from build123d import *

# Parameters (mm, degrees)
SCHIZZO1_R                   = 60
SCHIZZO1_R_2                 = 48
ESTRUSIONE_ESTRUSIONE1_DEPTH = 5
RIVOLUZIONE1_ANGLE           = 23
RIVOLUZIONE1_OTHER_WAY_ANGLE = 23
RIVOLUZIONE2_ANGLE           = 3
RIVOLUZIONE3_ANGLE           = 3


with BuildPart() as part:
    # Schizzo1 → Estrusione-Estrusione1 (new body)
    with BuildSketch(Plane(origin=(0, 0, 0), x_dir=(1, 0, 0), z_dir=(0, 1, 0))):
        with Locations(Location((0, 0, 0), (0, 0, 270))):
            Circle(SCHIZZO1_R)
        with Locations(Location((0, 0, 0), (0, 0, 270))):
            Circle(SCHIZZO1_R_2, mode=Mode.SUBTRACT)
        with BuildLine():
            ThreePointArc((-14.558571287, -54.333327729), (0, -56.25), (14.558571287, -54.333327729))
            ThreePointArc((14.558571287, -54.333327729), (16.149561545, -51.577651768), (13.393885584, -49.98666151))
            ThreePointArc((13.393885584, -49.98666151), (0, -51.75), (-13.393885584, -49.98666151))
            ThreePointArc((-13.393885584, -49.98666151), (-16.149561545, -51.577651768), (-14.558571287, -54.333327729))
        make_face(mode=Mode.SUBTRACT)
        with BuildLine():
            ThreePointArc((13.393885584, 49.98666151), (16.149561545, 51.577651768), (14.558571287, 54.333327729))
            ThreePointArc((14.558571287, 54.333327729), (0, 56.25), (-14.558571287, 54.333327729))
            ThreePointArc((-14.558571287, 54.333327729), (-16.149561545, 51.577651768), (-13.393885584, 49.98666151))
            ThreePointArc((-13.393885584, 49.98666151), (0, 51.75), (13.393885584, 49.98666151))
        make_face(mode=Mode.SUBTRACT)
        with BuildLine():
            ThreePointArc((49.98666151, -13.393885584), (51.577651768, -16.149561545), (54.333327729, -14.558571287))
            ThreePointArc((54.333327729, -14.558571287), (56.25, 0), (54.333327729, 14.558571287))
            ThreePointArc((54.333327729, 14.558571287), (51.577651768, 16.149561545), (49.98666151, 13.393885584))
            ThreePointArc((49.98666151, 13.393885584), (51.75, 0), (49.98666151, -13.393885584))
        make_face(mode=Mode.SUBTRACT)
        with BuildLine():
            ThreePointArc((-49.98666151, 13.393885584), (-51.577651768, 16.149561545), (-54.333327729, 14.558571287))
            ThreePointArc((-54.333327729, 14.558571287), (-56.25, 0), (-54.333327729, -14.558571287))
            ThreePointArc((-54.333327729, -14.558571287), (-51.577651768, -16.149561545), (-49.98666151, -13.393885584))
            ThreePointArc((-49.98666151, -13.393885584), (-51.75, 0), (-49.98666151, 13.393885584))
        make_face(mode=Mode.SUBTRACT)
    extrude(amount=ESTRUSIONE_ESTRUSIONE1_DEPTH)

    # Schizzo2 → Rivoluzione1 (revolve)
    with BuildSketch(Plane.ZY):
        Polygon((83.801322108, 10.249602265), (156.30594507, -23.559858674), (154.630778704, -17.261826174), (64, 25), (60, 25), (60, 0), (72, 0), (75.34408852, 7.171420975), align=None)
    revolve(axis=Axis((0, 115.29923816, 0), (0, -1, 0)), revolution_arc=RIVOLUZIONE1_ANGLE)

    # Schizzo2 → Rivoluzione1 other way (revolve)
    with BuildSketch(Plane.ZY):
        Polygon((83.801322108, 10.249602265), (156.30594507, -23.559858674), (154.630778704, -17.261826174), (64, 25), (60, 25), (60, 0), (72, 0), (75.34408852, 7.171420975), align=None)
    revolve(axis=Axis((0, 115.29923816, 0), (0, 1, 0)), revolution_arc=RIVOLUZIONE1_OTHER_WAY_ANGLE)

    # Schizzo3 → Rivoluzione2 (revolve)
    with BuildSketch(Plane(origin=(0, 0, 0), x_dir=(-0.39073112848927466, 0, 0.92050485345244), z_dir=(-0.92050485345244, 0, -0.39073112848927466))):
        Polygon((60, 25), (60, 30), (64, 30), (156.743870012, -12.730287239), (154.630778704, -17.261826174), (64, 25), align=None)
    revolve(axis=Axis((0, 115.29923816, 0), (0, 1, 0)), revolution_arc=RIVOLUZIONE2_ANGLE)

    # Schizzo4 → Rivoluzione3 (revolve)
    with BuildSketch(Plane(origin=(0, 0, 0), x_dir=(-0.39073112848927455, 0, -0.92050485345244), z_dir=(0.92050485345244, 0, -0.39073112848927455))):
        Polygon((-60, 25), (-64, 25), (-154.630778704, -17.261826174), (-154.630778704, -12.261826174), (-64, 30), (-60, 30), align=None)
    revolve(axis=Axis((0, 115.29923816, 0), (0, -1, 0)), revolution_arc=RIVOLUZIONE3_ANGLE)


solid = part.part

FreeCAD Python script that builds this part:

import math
import FreeCAD as App
import Part
import Sketcher
Q = App.Units.Quantity

doc = App.newDocument("Part")
body = doc.addObject("PartDesign::Body", "Body")

sketch1 = doc.addObject("Sketcher::SketchObject", "Sketch")
body.addObject(sketch1)
sketch1.AttachmentSupport = (doc.XZ_Plane, [""])
sketch1.MapMode = "FlatFace"
sketch1.addGeometry([
    Part.Circle(App.Vector(0, 0, 0), App.Vector(0, 0, 1), 60),
    Part.ArcOfCircle(Part.Circle(App.Vector(14, -52.2, 0), App.Vector(0, 0, 1), 2.2), math.radians(-75), math.radians(105)),
    Part.ArcOfCircle(Part.Circle(App.Vector(0, 0, 0), App.Vector(0, 0, 1), 51.7), math.radians(-105), math.radians(-75)),
    Part.ArcOfCircle(Part.Circle(App.Vector(-14, -52.2, 0), App.Vector(0, 0, 1), 2.2), math.radians(75), math.radians(255)),
    Part.ArcOfCircle(Part.Circle(App.Vector(0, 0, 0), App.Vector(0, 0, 1), 56.3), math.radians(-105), math.radians(-75)),
    Part.Circle(App.Vector(0, 0, 0), App.Vector(0, 0, 1), 48),
    Part.ArcOfCircle(Part.Circle(App.Vector(-52.2, -14, 0), App.Vector(0, 0, 1), 2.2), math.radians(-165), math.radians(15)),
    Part.ArcOfCircle(Part.Circle(App.Vector(0, 0, 0), App.Vector(0, 0, 1), 51.7), math.radians(165), math.radians(195)),
    Part.ArcOfCircle(Part.Circle(App.Vector(-52.2, 14, 0), App.Vector(0, 0, 1), 2.2), math.radians(-15), math.radians(165)),
    Part.ArcOfCircle(Part.Circle(App.Vector(0, 0, 0), App.Vector(0, 0, 1), 56.3), math.radians(165), math.radians(195)),
    Part.ArcOfCircle(Part.Circle(App.Vector(52.2, 14, 0), App.Vector(0, 0, 1), 2.2), math.radians(15), math.radians(195)),
    Part.ArcOfCircle(Part.Circle(App.Vector(0, 0, 0), App.Vector(0, 0, 1), 51.7), math.radians(-15), math.radians(15)),
    Part.ArcOfCircle(Part.Circle(App.Vector(52.2, -14, 0), App.Vector(0, 0, 1), 2.2), math.radians(165), math.radians(345)),
    Part.ArcOfCircle(Part.Circle(App.Vector(0, 0, 0), App.Vector(0, 0, 1), 56.3), math.radians(-15), math.radians(15)),
    Part.ArcOfCircle(Part.Circle(App.Vector(0, 0, 0), App.Vector(0, 0, 1), 56.3), math.radians(75), math.radians(105)),
    Part.ArcOfCircle(Part.Circle(App.Vector(-14, 52.2, 0), App.Vector(0, 0, 1), 2.2), math.radians(105), math.radians(285)),
    Part.ArcOfCircle(Part.Circle(App.Vector(0, 0, 0), App.Vector(0, 0, 1), 51.7), math.radians(75), math.radians(105)),
    Part.ArcOfCircle(Part.Circle(App.Vector(14, 52.2, 0), App.Vector(0, 0, 1), 2.2), math.radians(-105), math.radians(75)),
], False)
sketch1.addConstraint([
    Sketcher.Constraint("Tangent", 1, 2, 2, 2),
    Sketcher.Constraint("Tangent", 2, 1, 3, 1),
    Sketcher.Constraint("Tangent", 3, 2, 4, 1),
    Sketcher.Constraint("Tangent", 4, 2, 1, 1),
    Sketcher.Constraint("Tangent", 6, 2, 7, 2),
    Sketcher.Constraint("Tangent", 7, 1, 8, 1),
    Sketcher.Constraint("Tangent", 8, 2, 9, 1),
    Sketcher.Constraint("Tangent", 9, 2, 6, 1),
    Sketcher.Constraint("Tangent", 10, 2, 11, 2),
    Sketcher.Constraint("Tangent", 11, 1, 12, 1),
    Sketcher.Constraint("Tangent", 12, 2, 13, 1),
    Sketcher.Constraint("Tangent", 13, 2, 10, 1),
    Sketcher.Constraint("Tangent", 14, 2, 15, 1),
    Sketcher.Constraint("Tangent", 15, 2, 16, 2),
    Sketcher.Constraint("Tangent", 16, 1, 17, 1),
    Sketcher.Constraint("Tangent", 17, 2, 14, 1),
    Sketcher.Constraint("Coincident", 0, 3, -1, 1),
    Sketcher.Constraint("Coincident", 2, 3, -1, 1),
    Sketcher.Constraint("Coincident", 4, 3, -1, 1),
    Sketcher.Constraint("Coincident", 5, 3, -1, 1),
    Sketcher.Constraint("Coincident", 7, 3, -1, 1),
    Sketcher.Constraint("Coincident", 9, 3, -1, 1),
    Sketcher.Constraint("Coincident", 11, 3, -1, 1),
    Sketcher.Constraint("Coincident", 13, 3, -1, 1),
    Sketcher.Constraint("Coincident", 14, 3, -1, 1),
    Sketcher.Constraint("Coincident", 16, 3, -1, 1),
    Sketcher.Constraint("Equal", 3, 6),
    Sketcher.Constraint("Equal", 2, 7),
    Sketcher.Constraint("Equal", 8, 10),
    Sketcher.Constraint("Equal", 7, 11),
    Sketcher.Constraint("Equal", 13, 14),
    Sketcher.Constraint("Equal", 12, 15),
    Sketcher.Constraint("Horizontal", 1, 3, 3, 3),
    Sketcher.Constraint("Horizontal", 8, 3, 10, 3),
    Sketcher.Constraint("Horizontal", 6, 3, 12, 3),
    Sketcher.Constraint("Horizontal", 15, 3, 17, 3),
    Sketcher.Constraint("Vertical", 6, 3, 8, 3),
    Sketcher.Constraint("Vertical", 3, 3, 15, 3),
    Sketcher.Constraint("Diameter", 0, Q("120 mm")),
    Sketcher.Constraint("Diameter", 5, Q("96 mm")),
    Sketcher.Constraint("Radius", 1, Q("2.25 mm")),
    Sketcher.Constraint("Radius", 2, Q("51.75 mm")),
    Sketcher.Constraint("DistanceX", 3, 2, 1, 3, Q("28.5348 mm")),
    Sketcher.Constraint("DistanceY", 3, 2, 6, 3, Q("40.357099 mm")),
])
pad1 = doc.addObject("PartDesign::Pad", "Pad")
body.addObject(pad1)
pad1.Profile = sketch1
pad1.Length = 5
pad1.Reversed = True

sketch2 = doc.addObject("Sketcher::SketchObject", "Sketch001")
body.addObject(sketch2)
sketch2.AttachmentSupport = (doc.YZ_Plane, [""])
sketch2.MapMode = "FlatFace"
sketch2.addGeometry([
    Part.LineSegment(App.Vector(10.2, 83.8, 0), App.Vector(-23.6, 156.3, 0)),
    Part.LineSegment(App.Vector(-23.6, 156.3, 0), App.Vector(-17.3, 154.6, 0)),
    Part.LineSegment(App.Vector(-17.3, 154.6, 0), App.Vector(25, 64, 0)),
    Part.LineSegment(App.Vector(25, 64, 0), App.Vector(25, 60, 0)),
    Part.LineSegment(App.Vector(25, 60, 0), App.Vector(0, 60, 0)),
    Part.LineSegment(App.Vector(0, 60, 0), App.Vector(0, 72, 0)),
    Part.LineSegment(App.Vector(0, 72, 0), App.Vector(7.2, 75.3, 0)),
    Part.LineSegment(App.Vector(7.2, 75.3, 0), App.Vector(10.2, 83.8, 0)),
], False)
sketch2.addConstraint([
    Sketcher.Constraint("Coincident", 0, 2, 1, 1),
    Sketcher.Constraint("Coincident", 1, 2, 2, 1),
    Sketcher.Constraint("Coincident", 2, 2, 3, 1),
    Sketcher.Constraint("Coincident", 3, 2, 4, 1),
    Sketcher.Constraint("Coincident", 4, 2, 5, 1),
    Sketcher.Constraint("Coincident", 5, 2, 6, 1),
    Sketcher.Constraint("Coincident", 6, 2, 7, 1),
    Sketcher.Constraint("Coincident", 7, 2, 0, 1),
    Sketcher.Constraint("Vertical", 3),
    Sketcher.Constraint("Horizontal", 4),
    Sketcher.Constraint("Vertical", 5),
    Sketcher.Constraint("PointOnObject", 4, 2, -2),
    Sketcher.Constraint("Parallel", 0, 2),
    Sketcher.Constraint("Perpendicular", 2, 6),
    Sketcher.Constraint("DistanceX", 4, 2, 4, 1, Q("25 mm")),
    Sketcher.Constraint("DistanceY", 3, 2, 3, 1, Q("4 mm")),
    Sketcher.Constraint("DistanceY", 5, 1, 5, 2, Q("12 mm")),
    Sketcher.Constraint("Angle", 0, Q("115 deg")),
    Sketcher.Constraint("Angle", 7, Q("70 deg")),
    Sketcher.Constraint("Distance", 0, Q("80 mm")),
    Sketcher.Constraint("Distance", 2, Q("100 mm")),
    Sketcher.Constraint("Distance", 7, Q("9 mm")),
    Sketcher.Constraint("DistanceY", -1, 1, 2, 2, Q("64 mm")),
    Sketcher.Constraint("Distance", 1, Q("6.517008 mm")),
])
revolution = doc.addObject("PartDesign::Revolution", "Revolution")
body.addObject(revolution)
revolution.Profile = sketch2
revolution.ReferenceAxis = (sketch2, ["H_Axis"])
revolution.Angle = 23
revolution.Reversed = True

sketch3 = doc.addObject("Sketcher::SketchObject", "Sketch002")
body.addObject(sketch3)
sketch3.AttachmentSupport = (doc.YZ_Plane, [""])
sketch3.MapMode = "FlatFace"
sketch3.addGeometry([
    Part.LineSegment(App.Vector(10.2, 83.8, 0), App.Vector(-23.6, 156.3, 0)),
    Part.LineSegment(App.Vector(-23.6, 156.3, 0), App.Vector(-17.3, 154.6, 0)),
    Part.LineSegment(App.Vector(-17.3, 154.6, 0), App.Vector(25, 64, 0)),
    Part.LineSegment(App.Vector(25, 64, 0), App.Vector(25, 60, 0)),
    Part.LineSegment(App.Vector(25, 60, 0), App.Vector(0, 60, 0)),
    Part.LineSegment(App.Vector(0, 60, 0), App.Vector(0, 72, 0)),
    Part.LineSegment(App.Vector(0, 72, 0), App.Vector(7.2, 75.3, 0)),
    Part.LineSegment(App.Vector(7.2, 75.3, 0), App.Vector(10.2, 83.8, 0)),
], False)
sketch3.addConstraint([
    Sketcher.Constraint("Coincident", 0, 2, 1, 1),
    Sketcher.Constraint("Coincident", 1, 2, 2, 1),
    Sketcher.Constraint("Coincident", 2, 2, 3, 1),
    Sketcher.Constraint("Coincident", 3, 2, 4, 1),
    Sketcher.Constraint("Coincident", 4, 2, 5, 1),
    Sketcher.Constraint("Coincident", 5, 2, 6, 1),
    Sketcher.Constraint("Coincident", 6, 2, 7, 1),
    Sketcher.Constraint("Coincident", 7, 2, 0, 1),
    Sketcher.Constraint("Vertical", 3),
    Sketcher.Constraint("Horizontal", 4),
    Sketcher.Constraint("Vertical", 5),
    Sketcher.Constraint("PointOnObject", 4, 2, -2),
    Sketcher.Constraint("Parallel", 0, 2),
    Sketcher.Constraint("Perpendicular", 2, 6),
    Sketcher.Constraint("DistanceX", 4, 2, 4, 1, Q("25 mm")),
    Sketcher.Constraint("DistanceY", 3, 2, 3, 1, Q("4 mm")),
    Sketcher.Constraint("DistanceY", 5, 1, 5, 2, Q("12 mm")),
    Sketcher.Constraint("Angle", 0, Q("115 deg")),
    Sketcher.Constraint("Angle", 7, Q("70 deg")),
    Sketcher.Constraint("Distance", 0, Q("80 mm")),
    Sketcher.Constraint("Distance", 2, Q("100 mm")),
    Sketcher.Constraint("Distance", 7, Q("9 mm")),
    Sketcher.Constraint("DistanceY", -1, 1, 2, 2, Q("64 mm")),
    Sketcher.Constraint("Distance", 1, Q("6.517008 mm")),
])
revolution2 = doc.addObject("PartDesign::Revolution", "Revolution001")
body.addObject(revolution2)
revolution2.Profile = sketch3
revolution2.ReferenceAxis = (sketch3, ["H_Axis"])
revolution2.Angle = 23

sketch4 = doc.addObject("Sketcher::SketchObject", "Sketch003")
body.addObject(sketch4)
sketch4.Placement = App.Placement(App.Vector(0, 0, 0), App.Rotation(App.Vector(-0.390731128, 0, 0.920504853), App.Vector(0, 0.999999999, 0), App.Vector(-0.920504853, 0, -0.390731128), "ZXY"))
sketch4.addGeometry([
    Part.LineSegment(App.Vector(60, 30, 0), App.Vector(60, 25, 0)),
    Part.LineSegment(App.Vector(60, 25, 0), App.Vector(64, 25, 0)),
    Part.LineSegment(App.Vector(64, 25, 0), App.Vector(154.6, -17.3, 0)),
    Part.LineSegment(App.Vector(154.6, -17.3, 0), App.Vector(156.7, -12.7, 0)),
    Part.LineSegment(App.Vector(156.7, -12.7, 0), App.Vector(64, 30, 0)),
    Part.LineSegment(App.Vector(64, 30, 0), App.Vector(60, 30, 0)),
], False)
sketch4.addConstraint([
    Sketcher.Constraint("Coincident", 0, 2, 1, 1),
    Sketcher.Constraint("Coincident", 1, 2, 2, 1),
    Sketcher.Constraint("Coincident", 2, 2, 3, 1),
    Sketcher.Constraint("Coincident", 3, 2, 4, 1),
    Sketcher.Constraint("Coincident", 4, 2, 5, 1),
    Sketcher.Constraint("Coincident", 5, 2, 0, 1),
    Sketcher.Constraint("Vertical", 0),
    Sketcher.Constraint("Horizontal", 1),
    Sketcher.Constraint("Horizontal", 5),
    Sketcher.Constraint("Perpendicular", 2, 3),
    Sketcher.Constraint("Vertical", 1, 2, 4, 2),
    Sketcher.Constraint("DistanceX", 1, 1, 1, 2, Q("4 mm")),
    Sketcher.Constraint("DistanceY", 0, 2, 0, 1, Q("5 mm")),
    Sketcher.Constraint("Angle", 2, Q("-25 deg")),
    Sketcher.Constraint("Distance", 2, Q("100 mm")),
    Sketcher.Constraint("Distance", 3, Q("5 mm")),
    Sketcher.Constraint("DistanceX", -1, 1, 0, 2, Q("60 mm")),
    Sketcher.Constraint("DistanceY", -1, 1, 0, 2, Q("25 mm")),
])
revolution3 = doc.addObject("PartDesign::Revolution", "Revolution002")
body.addObject(revolution3)
revolution3.Profile = sketch4
revolution3.ReferenceAxis = (sketch4, ["V_Axis"])
revolution3.Angle = 3

sketch5 = doc.addObject("Sketcher::SketchObject", "Sketch004")
body.addObject(sketch5)
sketch5.Placement = App.Placement(App.Vector(0, 0, 0), App.Rotation(App.Vector(-0.390731128, 0, -0.920504853), App.Vector(0, 0.999999999, 0), App.Vector(0.920504853, 0, -0.390731128), "ZXY"))
sketch5.addGeometry([
    Part.LineSegment(App.Vector(-64, 25, 0), App.Vector(-60, 25, 0)),
    Part.LineSegment(App.Vector(-60, 25, 0), App.Vector(-60, 30, 0)),
    Part.LineSegment(App.Vector(-60, 30, 0), App.Vector(-64, 30, 0)),
    Part.LineSegment(App.Vector(-64, 30, 0), App.Vector(-154.6, -12.3, 0)),
    Part.LineSegment(App.Vector(-154.6, -12.3, 0), App.Vector(-154.6, -17.3, 0)),
    Part.LineSegment(App.Vector(-154.6, -17.3, 0), App.Vector(-64, 25, 0)),
], False)
sketch5.addConstraint([
    Sketcher.Constraint("Coincident", 0, 2, 1, 1),
    Sketcher.Constraint("Coincident", 1, 2, 2, 1),
    Sketcher.Constraint("Coincident", 2, 2, 3, 1),
    Sketcher.Constraint("Coincident", 3, 2, 4, 1),
    Sketcher.Constraint("Coincident", 4, 2, 5, 1),
    Sketcher.Constraint("Coincident", 5, 2, 0, 1),
    Sketcher.Constraint("Horizontal", 0),
    Sketcher.Constraint("Vertical", 1),
    Sketcher.Constraint("Horizontal", 2),
    Sketcher.Constraint("Vertical", 4),
    Sketcher.Constraint("Parallel", 3, 5),
    Sketcher.Constraint("Vertical", 2, 2, 5, 2),
    Sketcher.Constraint("DistanceX", 0, 1, 0, 2, Q("4 mm")),
    Sketcher.Constraint("DistanceY", 1, 1, 1, 2, Q("5 mm")),
    Sketcher.Constraint("Angle", 3, Q("-155 deg")),
    Sketcher.Constraint("Distance", 3, Q("100 mm")),
    Sketcher.Constraint("DistanceX", 0, 2, -1, 1, Q("60 mm")),
    Sketcher.Constraint("DistanceY", -1, 1, 0, 2, Q("25 mm")),
])
revolution4 = doc.addObject("PartDesign::Revolution", "Revolution003")
body.addObject(revolution4)
revolution4.Profile = sketch5
revolution4.ReferenceAxis = (sketch5, ["V_Axis"])
revolution4.Angle = 3
revolution4.Reversed = True

doc.recompute()
